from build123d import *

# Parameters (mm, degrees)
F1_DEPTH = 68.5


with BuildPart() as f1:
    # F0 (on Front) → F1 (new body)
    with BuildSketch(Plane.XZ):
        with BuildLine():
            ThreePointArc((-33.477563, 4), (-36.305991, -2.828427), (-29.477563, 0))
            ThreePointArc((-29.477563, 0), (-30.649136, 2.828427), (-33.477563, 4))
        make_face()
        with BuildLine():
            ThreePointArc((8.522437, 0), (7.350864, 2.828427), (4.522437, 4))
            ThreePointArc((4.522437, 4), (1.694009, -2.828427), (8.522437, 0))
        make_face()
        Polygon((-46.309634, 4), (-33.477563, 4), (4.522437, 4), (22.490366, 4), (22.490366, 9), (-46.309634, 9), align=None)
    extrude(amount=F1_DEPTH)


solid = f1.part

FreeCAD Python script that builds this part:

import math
import FreeCAD as App
import Part
import Sketcher

V = App.Vector
Q = App.Units.Quantity

doc = App.newDocument("Part")
body = doc.addObject("PartDesign::Body", "Body")
body.AllowCompound = True

sketch1 = doc.addObject("Sketcher::SketchObject", "Sketch")
body.addObject(sketch1)
sketch1.AttachmentSupport = (doc.XZ_Plane, [""])
sketch1.MapMode = "FlatFace"
sketch1.addGeometry(Part.ArcOfCircle(Part.Circle(V(-33.477563, 0, 0), V(0, 0, 1), 4), math.radians(89.999997), math.radians(360.000003)), False)
sketch1.addGeometry(Part.ArcOfCircle(Part.Circle(V(-33.477563, 0, 0), V(0, 0, 1), 4), math.radians(0.000006), math.radians(89.999994)), False)
sketch1.addGeometry(Part.ArcOfCircle(Part.Circle(V(4.522437, 0, 0), V(0, 0, 1), 4), math.radians(0.000006), math.radians(89.999994)), False)
sketch1.addGeometry(Part.ArcOfCircle(Part.Circle(V(4.522437, 0, 0), V(0, 0, 1), 4), math.radians(89.999997), math.radians(360.000003)), False)
sketch1.addGeometry(Part.LineSegment(V(-46.309634, 4, 0), V(-33.477563, 4, 0)), False)
sketch1.addGeometry(Part.LineSegment(V(-33.477563, 4, 0), V(4.522437, 4, 0)), False)
sketch1.addGeometry(Part.LineSegment(V(4.522437, 4, 0), V(22.490366, 4, 0)), False)
sketch1.addGeometry(Part.LineSegment(V(22.490366, 4, 0), V(22.490366, 9, 0)), False)
sketch1.addGeometry(Part.LineSegment(V(22.490366, 9, 0), V(-46.309634, 9, 0)), False)
sketch1.addGeometry(Part.LineSegment(V(-46.309634, 9, 0), V(-46.309634, 4, 0)), False)
sketch1.addConstraint(Sketcher.Constraint("Tangent", 0, 1, 1, 2))
sketch1.addConstraint(Sketcher.Constraint("Coincident", 1, 1, 0, 2))
sketch1.addConstraint(Sketcher.Constraint("Tangent", 2, 1, 3, 2))
sketch1.addConstraint(Sketcher.Constraint("Coincident", 3, 1, 2, 2))
sketch1.addConstraint(Sketcher.Constraint("Coincident", 4, 2, 5, 1))
sketch1.addConstraint(Sketcher.Constraint("Coincident", 5, 2, 6, 1))
sketch1.addConstraint(Sketcher.Constraint("Coincident", 6, 2, 7, 1))
sketch1.addConstraint(Sketcher.Constraint("Coincident", 7, 2, 8, 1))
sketch1.addConstraint(Sketcher.Constraint("Coincident", 8, 2, 9, 1))
sketch1.addConstraint(Sketcher.Constraint("Coincident", 9, 2, 4, 1))
sketch1.addConstraint(Sketcher.Constraint("Horizontal", 4))
sketch1.addConstraint(Sketcher.Constraint("Horizontal", 5))
sketch1.addConstraint(Sketcher.Constraint("Horizontal", 6))
sketch1.addConstraint(Sketcher.Constraint("Vertical", 7))
sketch1.addConstraint(Sketcher.Constraint("Horizontal", 8))
sketch1.addConstraint(Sketcher.Constraint("Vertical", 9))
sketch1.addConstraint(Sketcher.Constraint("Coincident", 4, 2, 0, 1))
sketch1.addConstraint(Sketcher.Constraint("Coincident", 5, 2, 3, 1))
sketch1.addConstraint(Sketcher.Constraint("Equal", 1, 2))
sketch1.addConstraint(Sketcher.Constraint("PointOnObject", 0, 3, -1))
sketch1.addConstraint(Sketcher.Constraint("PointOnObject", 1, 1, -1))
sketch1.addConstraint(Sketcher.Constraint("PointOnObject", 2, 1, -1))
sketch1.addConstraint(Sketcher.Constraint("Vertical", 1, 3, 0, 1))
sketch1.addConstraint(Sketcher.Constraint("Vertical", 2, 3, 3, 1))
sketch1.addConstraint(Sketcher.Constraint("Radius", 0, Q("4 mm")))
sketch1.addConstraint(Sketcher.Constraint("DistanceX", 5, 1, 5, 2, Q("38 mm")))
sketch1.addConstraint(Sketcher.Constraint("DistanceY", 7, 1, 7, 2, Q("5 mm")))
sketch1.addConstraint(Sketcher.Constraint("DistanceX", 8, 2, 8, 1, Q("68.8 mm")))
sketch1.addConstraint(Sketcher.Constraint("DistanceX", 4, 1, 4, 2, Q("12.832071 mm")))
sketch1.addConstraint(Sketcher.Constraint("DistanceX", 0, 3, -1, 1, Q("33.477563 mm")))
pad1 = doc.addObject("PartDesign::Pad", "Pad")
body.addObject(pad1)
pad1.Profile = sketch1
pad1.Length = 68.5

doc.recompute()
